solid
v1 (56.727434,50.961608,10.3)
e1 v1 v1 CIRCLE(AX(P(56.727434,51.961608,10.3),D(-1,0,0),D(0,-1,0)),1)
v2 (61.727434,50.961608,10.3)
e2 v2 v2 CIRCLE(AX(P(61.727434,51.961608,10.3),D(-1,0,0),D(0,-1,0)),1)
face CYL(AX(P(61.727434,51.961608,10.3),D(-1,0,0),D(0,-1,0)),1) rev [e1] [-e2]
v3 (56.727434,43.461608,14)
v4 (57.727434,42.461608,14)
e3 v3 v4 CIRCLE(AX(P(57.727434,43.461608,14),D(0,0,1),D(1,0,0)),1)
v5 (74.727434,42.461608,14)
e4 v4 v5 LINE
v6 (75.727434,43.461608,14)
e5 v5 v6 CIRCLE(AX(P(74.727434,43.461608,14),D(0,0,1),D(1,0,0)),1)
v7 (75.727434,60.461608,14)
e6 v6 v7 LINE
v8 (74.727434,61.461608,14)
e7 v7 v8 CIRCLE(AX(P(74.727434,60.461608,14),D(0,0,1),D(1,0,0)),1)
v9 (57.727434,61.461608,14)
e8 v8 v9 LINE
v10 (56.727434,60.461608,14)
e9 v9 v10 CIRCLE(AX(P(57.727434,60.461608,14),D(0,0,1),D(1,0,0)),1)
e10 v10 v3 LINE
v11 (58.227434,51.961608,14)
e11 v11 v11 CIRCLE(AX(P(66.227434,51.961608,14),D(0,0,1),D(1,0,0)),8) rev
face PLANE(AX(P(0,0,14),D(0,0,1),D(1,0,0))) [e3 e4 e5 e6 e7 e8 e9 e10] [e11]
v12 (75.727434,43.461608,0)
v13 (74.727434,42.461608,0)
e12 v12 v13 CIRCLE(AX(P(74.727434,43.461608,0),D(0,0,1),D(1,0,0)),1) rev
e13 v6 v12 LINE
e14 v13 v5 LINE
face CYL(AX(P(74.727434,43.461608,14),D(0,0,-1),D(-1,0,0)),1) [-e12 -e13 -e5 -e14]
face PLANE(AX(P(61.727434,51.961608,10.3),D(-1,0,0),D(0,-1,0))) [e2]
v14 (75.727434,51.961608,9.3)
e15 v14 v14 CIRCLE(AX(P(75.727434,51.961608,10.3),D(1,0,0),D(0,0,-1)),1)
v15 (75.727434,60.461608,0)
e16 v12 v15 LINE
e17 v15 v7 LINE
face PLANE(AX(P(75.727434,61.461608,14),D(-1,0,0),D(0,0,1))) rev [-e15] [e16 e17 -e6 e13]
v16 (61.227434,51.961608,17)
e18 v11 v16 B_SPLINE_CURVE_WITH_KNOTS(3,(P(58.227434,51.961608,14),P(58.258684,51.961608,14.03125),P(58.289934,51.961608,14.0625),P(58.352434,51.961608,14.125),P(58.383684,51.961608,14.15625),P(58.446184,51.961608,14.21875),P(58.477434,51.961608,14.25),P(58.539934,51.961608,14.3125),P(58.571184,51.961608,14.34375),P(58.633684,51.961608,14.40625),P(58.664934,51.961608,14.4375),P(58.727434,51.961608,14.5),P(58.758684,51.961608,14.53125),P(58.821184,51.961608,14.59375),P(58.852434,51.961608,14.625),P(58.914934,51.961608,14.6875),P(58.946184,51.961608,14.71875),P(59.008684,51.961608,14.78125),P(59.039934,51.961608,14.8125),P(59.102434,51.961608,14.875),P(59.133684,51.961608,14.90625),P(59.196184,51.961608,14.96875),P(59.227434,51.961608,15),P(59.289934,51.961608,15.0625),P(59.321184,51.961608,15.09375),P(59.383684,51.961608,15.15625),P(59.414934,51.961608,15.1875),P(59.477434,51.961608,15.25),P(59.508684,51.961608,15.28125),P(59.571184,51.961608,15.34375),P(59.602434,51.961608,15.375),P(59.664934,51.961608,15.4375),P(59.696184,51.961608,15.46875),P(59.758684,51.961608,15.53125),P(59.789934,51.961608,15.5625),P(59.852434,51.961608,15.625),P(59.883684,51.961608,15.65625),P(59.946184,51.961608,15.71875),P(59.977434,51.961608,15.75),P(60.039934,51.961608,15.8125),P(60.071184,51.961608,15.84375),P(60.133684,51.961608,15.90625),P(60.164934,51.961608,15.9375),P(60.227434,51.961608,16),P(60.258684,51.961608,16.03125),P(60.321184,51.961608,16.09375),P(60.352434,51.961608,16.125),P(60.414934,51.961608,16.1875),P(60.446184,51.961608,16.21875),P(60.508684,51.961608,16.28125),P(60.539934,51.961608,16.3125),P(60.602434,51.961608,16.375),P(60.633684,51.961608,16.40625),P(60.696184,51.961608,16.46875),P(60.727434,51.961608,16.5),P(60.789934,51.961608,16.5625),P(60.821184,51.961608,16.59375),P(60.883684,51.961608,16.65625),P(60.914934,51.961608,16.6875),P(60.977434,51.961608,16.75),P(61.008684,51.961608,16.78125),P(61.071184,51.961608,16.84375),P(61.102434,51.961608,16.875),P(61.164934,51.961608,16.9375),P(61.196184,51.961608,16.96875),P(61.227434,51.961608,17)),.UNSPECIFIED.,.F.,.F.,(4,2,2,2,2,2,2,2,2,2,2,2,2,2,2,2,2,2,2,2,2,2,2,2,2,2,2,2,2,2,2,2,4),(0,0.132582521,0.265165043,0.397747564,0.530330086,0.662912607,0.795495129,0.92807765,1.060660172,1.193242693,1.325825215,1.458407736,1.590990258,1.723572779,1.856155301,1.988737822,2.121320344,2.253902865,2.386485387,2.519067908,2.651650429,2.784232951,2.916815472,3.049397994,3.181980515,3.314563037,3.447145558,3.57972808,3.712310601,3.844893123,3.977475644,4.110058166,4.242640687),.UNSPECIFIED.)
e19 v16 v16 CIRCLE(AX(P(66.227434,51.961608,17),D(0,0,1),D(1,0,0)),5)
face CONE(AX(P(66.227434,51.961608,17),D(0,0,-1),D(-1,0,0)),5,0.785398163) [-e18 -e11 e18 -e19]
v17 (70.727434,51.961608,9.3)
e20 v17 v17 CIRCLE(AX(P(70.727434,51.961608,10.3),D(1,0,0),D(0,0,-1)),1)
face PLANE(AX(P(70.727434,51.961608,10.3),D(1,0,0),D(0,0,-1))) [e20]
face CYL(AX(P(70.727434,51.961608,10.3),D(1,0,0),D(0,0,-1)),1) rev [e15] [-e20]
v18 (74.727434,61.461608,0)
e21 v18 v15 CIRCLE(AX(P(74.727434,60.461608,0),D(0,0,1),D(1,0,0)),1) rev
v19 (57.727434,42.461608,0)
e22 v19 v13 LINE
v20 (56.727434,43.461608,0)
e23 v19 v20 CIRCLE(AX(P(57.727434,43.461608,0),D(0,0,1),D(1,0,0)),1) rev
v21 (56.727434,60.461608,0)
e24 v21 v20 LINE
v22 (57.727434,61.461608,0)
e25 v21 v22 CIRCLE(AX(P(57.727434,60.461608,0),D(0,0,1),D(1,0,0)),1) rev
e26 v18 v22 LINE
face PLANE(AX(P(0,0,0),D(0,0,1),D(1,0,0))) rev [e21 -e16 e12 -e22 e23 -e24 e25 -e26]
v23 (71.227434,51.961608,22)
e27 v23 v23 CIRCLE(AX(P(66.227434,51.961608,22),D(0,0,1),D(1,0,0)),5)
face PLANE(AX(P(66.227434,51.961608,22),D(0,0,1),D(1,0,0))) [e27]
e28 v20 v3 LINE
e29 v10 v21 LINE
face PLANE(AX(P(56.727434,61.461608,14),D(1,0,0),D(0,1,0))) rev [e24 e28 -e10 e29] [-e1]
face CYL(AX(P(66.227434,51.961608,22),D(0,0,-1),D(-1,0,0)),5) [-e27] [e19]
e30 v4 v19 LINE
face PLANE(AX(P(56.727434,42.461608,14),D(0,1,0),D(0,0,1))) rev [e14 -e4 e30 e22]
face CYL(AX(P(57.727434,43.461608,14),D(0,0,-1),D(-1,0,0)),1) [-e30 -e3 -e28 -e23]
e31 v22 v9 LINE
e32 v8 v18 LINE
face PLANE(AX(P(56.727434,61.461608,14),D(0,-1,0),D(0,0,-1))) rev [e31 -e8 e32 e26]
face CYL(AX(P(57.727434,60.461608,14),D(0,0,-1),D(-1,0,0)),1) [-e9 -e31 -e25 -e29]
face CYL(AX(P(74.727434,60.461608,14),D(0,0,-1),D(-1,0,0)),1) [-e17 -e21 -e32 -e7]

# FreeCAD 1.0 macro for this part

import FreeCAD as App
import Part
import Sketcher
from FreeCAD import Vector
Q = App.Units.Quantity


def edges_at(feature, points):
    """Names of the edges that pass closest to the given points."""
    edges = feature.Shape.Edges
    near = lambda p: min(range(len(edges)), key=lambda i: edges[i].distToShape(Part.Vertex(*p))[0])
    return sorted({f"Edge{near(p) + 1}" for p in points})


def add_polygon(sketch, points):
    """Adds a closed chain of lines whose ends are joined by coincident constraints."""
    first, n = sketch.GeometryCount, len(points)
    for a, b in zip(points, points[1:] + points[:1]):
        sketch.addGeometry(Part.LineSegment(App.Vector(*a, 0), App.Vector(*b, 0)), False)
    for i in range(n):
        sketch.addConstraint(Sketcher.Constraint("Coincident", first + i, 2, first + (i + 1) % n, 1))

doc = App.newDocument("Part")
params = doc.addObject("Spreadsheet::Sheet", "Params")
for row, (alias, value) in enumerate([
    ("sketch1_width", "19 mm"),
    ("pad1_length", "14 mm"),
    ("fillet_radius", "1 mm"),
    ("sketch2_diameter", "10 mm"),
    ("pad2_length", "8 mm"),
    ("chamfer_size", "3 mm"),
    ("sketch3_diameter", "2 mm"),
    ("pocket1_length", "5 mm"),
    ("sketch4_diameter", "2 mm"),
    ("pocket2_length", "5 mm"),
], start=1):
    params.set(f"A{row}", alias)
    params.set(f"B{row}", "=" + value)
    params.setAlias(f"B{row}", alias)

body = doc.addObject("PartDesign::Body", "Body")

# Sketch on XY plane
sketch1 = doc.addObject("Sketcher::SketchObject", "Sketch")
body.addObject(sketch1)
sketch1.AttachmentSupport = (doc.XY_Plane, [""])
sketch1.MapMode = "FlatFace"
add_polygon(sketch1, [(56.727434, 61.461608), (56.727434, 42.461608), (75.727434, 42.461608), (75.727434, 61.461608)])  # lines 0-3
sketch1.addConstraint(Sketcher.Constraint("Vertical", 0))
sketch1.addConstraint(Sketcher.Constraint("Horizontal", 1))
sketch1.addConstraint(Sketcher.Constraint("Vertical", 2))
sketch1.addConstraint(Sketcher.Constraint("Horizontal", 3))
sketch1.addConstraint(Sketcher.Constraint("Equal", 3, 0))
sketch1.addConstraint(Sketcher.Constraint("DistanceX", 1, 1, 1, 2, Q("19 mm")))
sketch1.addConstraint(Sketcher.Constraint("DistanceX", -1, 1, 0, 2, Q("56.727434 mm")))
sketch1.addConstraint(Sketcher.Constraint("DistanceY", -1, 1, 0, 2, Q("42.461608 mm")))
sketch1.setExpression("Constraints[9]", "Params.sketch1_width")
pad1 = doc.addObject("PartDesign::Pad", "Pad")
body.addObject(pad1)
pad1.Profile = sketch1
pad1.setExpression("Length", "Params.pad1_length")
doc.recompute()

fillet = doc.addObject("PartDesign::Fillet", "Fillet")
body.addObject(fillet)
fillet.Base = (pad1, edges_at(pad1, [
    (56.727, 61.462, 7),
    (75.727, 61.462, 7),
    (75.727, 42.462, 7),
    (56.727, 42.462, 7),
]))
fillet.setExpression("Radius", "Params.fillet_radius")

# Sketch on XY plane
sketch2 = doc.addObject("Sketcher::SketchObject", "Sketch001")
body.addObject(sketch2)
sketch2.AttachmentSupport = (doc.XY_Plane, [""])
sketch2.MapMode = "FlatFace"
sketch2.AttachmentOffset = App.Placement(Vector(0, 0, 14), App.Rotation())
sketch2.addGeometry(Part.Circle(Vector(66.227434, 51.961608, 0), Vector(0, 0, 1), 5), False)
sketch2.addConstraint(Sketcher.Constraint("Diameter", 0, Q("10 mm")))
sketch2.addConstraint(Sketcher.Constraint("DistanceX", -1, 1, 0, 3, Q("66.227434 mm")))
sketch2.addConstraint(Sketcher.Constraint("DistanceY", -1, 1, 0, 3, Q("51.961608 mm")))
sketch2.setExpression("Constraints[0]", "Params.sketch2_diameter")
pad2 = doc.addObject("PartDesign::Pad", "Pad001")
body.addObject(pad2)
pad2.Profile = sketch2
pad2.setExpression("Length", "Params.pad2_length")
doc.recompute()

chamfer = doc.addObject("PartDesign::Chamfer", "Chamfer")
body.addObject(chamfer)
chamfer.Base = (pad2, edges_at(pad2, [(61.227, 51.962, 14)]))
chamfer.setExpression("Size", "Params.chamfer_size")

# Sketch on YZ plane
sketch3 = doc.addObject("Sketcher::SketchObject", "Sketch002")
body.addObject(sketch3)
sketch3.AttachmentSupport = (doc.YZ_Plane, [""])
sketch3.MapMode = "FlatFace"
sketch3.AttachmentOffset = App.Placement(Vector(0, 0, 56.727434), App.Rotation())
sketch3.addGeometry(Part.Circle(Vector(51.961608, 10.3, 0), Vector(0, 0, 1), 1), False)
sketch3.addConstraint(Sketcher.Constraint("Diameter", 0, Q("2 mm")))
sketch3.addConstraint(Sketcher.Constraint("DistanceY", -1, 1, 0, 3, Q("10.3 mm")))
sketch3.addConstraint(Sketcher.Constraint("DistanceX", -1, 1, 0, 3, Q("51.961608 mm")))
sketch3.setExpression("Constraints[0]", "Params.sketch3_diameter")
pocket1 = doc.addObject("PartDesign::Pocket", "Pocket")
body.addObject(pocket1)
pocket1.Profile = sketch3
pocket1.setExpression("Length", "Params.pocket1_length")
pocket1.Reversed = True

# Sketch on YZ plane
sketch4 = doc.addObject("Sketcher::SketchObject", "Sketch003")
body.addObject(sketch4)
sketch4.AttachmentSupport = (doc.YZ_Plane, [""])
sketch4.MapMode = "FlatFace"
sketch4.AttachmentOffset = App.Placement(Vector(0, 0, 70.727434), App.Rotation())
sketch4.addGeometry(Part.Circle(Vector(51.961608, 10.3, 0), Vector(0, 0, 1), 1), False)
sketch4.addConstraint(Sketcher.Constraint("Diameter", 0, Q("2 mm")))
sketch4.addConstraint(Sketcher.Constraint("DistanceY", -1, 1, 0, 3, Q("10.3 mm")))
sketch4.addConstraint(Sketcher.Constraint("DistanceX", -1, 1, 0, 3, Q("51.961608 mm")))
sketch4.setExpression("Constraints[0]", "Params.sketch4_diameter")
pocket2 = doc.addObject("PartDesign::Pocket", "Pocket001")
body.addObject(pocket2)
pocket2.Profile = sketch4
pocket2.setExpression("Length", "Params.pocket2_length")
pocket2.Reversed = True

doc.recompute()
